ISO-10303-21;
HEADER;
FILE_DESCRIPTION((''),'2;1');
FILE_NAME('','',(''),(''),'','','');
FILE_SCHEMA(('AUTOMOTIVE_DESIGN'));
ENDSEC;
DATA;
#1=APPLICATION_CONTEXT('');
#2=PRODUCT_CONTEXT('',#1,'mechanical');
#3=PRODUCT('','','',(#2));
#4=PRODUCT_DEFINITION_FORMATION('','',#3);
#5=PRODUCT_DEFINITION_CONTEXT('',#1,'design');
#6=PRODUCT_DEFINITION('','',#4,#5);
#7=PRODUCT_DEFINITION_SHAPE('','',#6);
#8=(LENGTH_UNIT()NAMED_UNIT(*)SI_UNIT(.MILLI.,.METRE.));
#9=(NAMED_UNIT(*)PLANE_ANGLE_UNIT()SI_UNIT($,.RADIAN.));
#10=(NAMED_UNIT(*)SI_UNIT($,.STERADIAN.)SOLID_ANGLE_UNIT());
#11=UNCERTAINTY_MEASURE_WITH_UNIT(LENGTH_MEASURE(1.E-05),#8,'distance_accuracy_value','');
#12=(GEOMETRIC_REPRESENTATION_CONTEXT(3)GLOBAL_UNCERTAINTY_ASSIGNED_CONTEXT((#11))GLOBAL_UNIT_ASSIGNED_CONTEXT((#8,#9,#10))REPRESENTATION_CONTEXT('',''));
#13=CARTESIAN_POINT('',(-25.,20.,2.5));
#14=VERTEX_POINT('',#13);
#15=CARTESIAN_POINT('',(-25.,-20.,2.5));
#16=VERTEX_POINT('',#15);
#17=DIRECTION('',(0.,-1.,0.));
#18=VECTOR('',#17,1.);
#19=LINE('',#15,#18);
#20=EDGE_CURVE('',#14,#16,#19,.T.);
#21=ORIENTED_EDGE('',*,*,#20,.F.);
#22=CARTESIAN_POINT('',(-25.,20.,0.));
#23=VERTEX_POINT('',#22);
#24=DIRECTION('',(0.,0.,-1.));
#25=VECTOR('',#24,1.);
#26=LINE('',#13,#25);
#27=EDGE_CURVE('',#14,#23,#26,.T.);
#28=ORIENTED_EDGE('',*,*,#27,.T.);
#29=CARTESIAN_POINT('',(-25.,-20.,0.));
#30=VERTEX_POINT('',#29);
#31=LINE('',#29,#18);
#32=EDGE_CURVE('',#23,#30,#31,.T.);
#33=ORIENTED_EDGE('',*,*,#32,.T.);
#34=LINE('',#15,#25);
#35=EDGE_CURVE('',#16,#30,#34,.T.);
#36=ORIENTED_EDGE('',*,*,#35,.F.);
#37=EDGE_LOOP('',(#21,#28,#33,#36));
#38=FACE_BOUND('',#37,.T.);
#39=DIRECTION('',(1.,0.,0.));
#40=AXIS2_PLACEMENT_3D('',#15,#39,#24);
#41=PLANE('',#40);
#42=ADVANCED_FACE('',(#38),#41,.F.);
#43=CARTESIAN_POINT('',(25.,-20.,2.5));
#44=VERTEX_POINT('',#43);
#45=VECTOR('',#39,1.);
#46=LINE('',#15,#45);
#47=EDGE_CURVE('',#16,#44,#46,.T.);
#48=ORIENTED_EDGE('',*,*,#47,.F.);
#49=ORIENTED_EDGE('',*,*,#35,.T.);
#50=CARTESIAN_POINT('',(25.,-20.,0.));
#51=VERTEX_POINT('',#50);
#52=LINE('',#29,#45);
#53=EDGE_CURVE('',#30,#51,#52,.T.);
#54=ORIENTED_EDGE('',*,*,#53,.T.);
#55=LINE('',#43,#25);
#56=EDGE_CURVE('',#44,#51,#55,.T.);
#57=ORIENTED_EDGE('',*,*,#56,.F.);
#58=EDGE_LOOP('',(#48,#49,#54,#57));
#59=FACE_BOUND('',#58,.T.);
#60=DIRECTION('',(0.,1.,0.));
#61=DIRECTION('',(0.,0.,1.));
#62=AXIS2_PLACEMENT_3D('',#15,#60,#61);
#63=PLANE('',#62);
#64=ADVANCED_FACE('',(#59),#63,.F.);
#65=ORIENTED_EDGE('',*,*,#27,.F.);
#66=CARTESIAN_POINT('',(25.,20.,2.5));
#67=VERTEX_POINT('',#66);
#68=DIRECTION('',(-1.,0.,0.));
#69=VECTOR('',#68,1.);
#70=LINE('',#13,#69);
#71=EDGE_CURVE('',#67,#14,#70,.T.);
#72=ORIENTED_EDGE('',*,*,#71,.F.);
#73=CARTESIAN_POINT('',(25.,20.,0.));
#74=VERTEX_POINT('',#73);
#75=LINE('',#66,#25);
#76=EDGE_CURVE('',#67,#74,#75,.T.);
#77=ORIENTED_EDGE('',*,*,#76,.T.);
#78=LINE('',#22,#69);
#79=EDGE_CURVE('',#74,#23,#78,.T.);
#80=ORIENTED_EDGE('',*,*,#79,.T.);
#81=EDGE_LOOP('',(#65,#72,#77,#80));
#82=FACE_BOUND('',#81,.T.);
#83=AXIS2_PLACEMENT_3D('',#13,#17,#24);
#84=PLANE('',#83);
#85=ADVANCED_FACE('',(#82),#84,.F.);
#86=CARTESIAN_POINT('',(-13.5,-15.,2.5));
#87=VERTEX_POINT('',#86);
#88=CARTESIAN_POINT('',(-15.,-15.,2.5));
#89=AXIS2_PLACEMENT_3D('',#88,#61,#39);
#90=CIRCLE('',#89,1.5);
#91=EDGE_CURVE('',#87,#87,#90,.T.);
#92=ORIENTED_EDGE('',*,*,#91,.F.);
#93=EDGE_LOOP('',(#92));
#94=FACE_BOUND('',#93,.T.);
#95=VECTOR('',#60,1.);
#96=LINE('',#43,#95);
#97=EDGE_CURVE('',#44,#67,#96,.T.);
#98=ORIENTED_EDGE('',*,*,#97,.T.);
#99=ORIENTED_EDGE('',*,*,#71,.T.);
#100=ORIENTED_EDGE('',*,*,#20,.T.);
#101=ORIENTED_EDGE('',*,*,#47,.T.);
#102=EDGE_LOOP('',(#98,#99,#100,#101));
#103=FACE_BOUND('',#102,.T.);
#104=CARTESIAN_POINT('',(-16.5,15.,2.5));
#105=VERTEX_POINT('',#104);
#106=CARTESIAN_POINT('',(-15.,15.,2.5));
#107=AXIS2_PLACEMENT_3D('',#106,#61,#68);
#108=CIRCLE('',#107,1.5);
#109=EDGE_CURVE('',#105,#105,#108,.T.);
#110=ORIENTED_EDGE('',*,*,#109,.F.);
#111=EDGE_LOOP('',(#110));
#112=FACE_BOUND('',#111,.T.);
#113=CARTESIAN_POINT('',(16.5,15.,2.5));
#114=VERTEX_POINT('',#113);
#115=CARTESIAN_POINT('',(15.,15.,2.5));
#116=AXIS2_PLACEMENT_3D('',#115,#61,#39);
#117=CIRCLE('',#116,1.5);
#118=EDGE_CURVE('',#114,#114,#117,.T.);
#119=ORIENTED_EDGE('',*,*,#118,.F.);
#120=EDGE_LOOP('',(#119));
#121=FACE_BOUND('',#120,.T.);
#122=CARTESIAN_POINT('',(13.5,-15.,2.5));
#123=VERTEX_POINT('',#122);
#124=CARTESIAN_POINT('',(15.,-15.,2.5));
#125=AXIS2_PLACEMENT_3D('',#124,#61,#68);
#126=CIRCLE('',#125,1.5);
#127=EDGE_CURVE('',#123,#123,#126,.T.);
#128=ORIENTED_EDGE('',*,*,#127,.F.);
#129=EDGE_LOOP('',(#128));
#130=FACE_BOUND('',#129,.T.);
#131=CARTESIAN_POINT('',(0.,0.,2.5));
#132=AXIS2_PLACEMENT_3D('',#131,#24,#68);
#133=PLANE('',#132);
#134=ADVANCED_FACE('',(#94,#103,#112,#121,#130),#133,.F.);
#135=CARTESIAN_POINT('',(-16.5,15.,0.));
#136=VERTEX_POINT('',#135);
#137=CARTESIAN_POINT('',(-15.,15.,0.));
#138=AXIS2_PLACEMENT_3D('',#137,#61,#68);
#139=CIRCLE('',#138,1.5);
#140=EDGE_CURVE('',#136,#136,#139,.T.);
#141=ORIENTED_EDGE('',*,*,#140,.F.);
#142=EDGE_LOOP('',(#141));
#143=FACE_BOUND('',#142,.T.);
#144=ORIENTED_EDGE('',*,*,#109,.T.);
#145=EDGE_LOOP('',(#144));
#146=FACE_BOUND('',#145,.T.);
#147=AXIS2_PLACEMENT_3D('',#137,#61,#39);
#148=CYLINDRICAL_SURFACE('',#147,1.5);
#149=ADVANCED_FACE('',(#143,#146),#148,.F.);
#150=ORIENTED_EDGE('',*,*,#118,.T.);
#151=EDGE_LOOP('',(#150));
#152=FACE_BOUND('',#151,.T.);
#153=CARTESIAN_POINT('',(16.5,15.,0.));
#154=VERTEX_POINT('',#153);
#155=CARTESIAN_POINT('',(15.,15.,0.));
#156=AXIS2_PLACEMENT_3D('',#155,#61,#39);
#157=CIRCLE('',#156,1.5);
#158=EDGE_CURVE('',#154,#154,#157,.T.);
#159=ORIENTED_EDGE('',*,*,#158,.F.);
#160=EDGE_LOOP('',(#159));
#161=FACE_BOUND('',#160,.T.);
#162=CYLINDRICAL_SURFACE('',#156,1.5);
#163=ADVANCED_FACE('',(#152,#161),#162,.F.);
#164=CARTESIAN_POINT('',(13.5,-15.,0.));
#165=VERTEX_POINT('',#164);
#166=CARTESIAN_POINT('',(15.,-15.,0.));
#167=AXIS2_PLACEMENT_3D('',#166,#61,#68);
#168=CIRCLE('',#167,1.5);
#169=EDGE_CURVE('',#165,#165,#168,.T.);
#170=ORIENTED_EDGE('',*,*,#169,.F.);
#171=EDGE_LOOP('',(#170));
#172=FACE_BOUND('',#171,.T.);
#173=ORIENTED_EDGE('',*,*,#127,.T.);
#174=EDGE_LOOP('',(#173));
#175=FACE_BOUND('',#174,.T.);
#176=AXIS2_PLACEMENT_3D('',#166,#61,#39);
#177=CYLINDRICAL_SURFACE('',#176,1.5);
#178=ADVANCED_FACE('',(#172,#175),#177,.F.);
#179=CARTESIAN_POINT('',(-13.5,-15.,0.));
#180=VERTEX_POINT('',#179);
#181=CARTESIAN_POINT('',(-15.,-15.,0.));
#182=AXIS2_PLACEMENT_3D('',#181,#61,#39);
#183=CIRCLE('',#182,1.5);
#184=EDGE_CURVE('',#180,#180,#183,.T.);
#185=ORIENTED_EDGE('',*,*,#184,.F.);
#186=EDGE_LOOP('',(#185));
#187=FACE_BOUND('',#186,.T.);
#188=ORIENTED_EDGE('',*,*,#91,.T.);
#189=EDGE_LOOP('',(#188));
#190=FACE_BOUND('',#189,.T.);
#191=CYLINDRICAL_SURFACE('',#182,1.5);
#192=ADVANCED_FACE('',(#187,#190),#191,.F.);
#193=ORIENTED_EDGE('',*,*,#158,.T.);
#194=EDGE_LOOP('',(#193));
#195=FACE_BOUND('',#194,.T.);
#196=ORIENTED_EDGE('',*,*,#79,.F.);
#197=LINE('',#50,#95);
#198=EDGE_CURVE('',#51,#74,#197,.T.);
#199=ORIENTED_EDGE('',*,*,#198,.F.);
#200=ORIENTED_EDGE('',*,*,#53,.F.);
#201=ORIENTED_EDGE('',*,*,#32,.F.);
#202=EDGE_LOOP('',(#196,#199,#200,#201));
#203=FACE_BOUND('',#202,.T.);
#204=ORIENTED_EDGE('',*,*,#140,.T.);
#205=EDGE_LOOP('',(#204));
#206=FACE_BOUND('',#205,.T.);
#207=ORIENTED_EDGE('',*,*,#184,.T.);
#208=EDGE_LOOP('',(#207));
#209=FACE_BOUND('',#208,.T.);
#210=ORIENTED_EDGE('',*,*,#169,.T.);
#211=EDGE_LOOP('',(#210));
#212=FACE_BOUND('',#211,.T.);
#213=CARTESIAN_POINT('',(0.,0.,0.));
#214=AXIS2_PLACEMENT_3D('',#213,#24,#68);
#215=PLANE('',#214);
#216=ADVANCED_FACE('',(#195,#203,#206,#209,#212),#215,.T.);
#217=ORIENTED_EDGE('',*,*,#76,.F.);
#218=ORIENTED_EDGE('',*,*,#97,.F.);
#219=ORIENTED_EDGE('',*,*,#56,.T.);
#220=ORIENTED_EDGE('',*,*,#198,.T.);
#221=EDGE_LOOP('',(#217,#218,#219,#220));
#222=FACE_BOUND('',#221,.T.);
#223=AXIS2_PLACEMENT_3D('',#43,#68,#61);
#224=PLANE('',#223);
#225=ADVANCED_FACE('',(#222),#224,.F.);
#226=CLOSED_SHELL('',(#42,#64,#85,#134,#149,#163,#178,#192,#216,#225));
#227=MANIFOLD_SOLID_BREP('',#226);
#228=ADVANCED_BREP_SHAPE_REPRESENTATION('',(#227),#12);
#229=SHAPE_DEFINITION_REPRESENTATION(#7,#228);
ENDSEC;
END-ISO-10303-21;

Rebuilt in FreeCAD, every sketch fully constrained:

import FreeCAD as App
import Part
import Sketcher

doc = App.newDocument("Part")
body = doc.addObject("PartDesign::Body", "Body")

sketch1 = body.newObject("Sketcher::SketchObject", "Sketch")
sketch1.AttachmentSupport = (doc.getObject("XY_Plane"), [""])
sketch1.MapMode = "FlatFace"
sketch1.addGeometry(Part.LineSegment(App.Vector(-25, 20, 0), App.Vector(-25, -20, 0)), False)
sketch1.addGeometry(Part.LineSegment(App.Vector(-25, -20, 0), App.Vector(25, -20, 0)), False)
sketch1.addGeometry(Part.LineSegment(App.Vector(25, -20, 0), App.Vector(25, 20, 0)), False)
sketch1.addGeometry(Part.LineSegment(App.Vector(25, 20, 0), App.Vector(-25, 20, 0)), False)
sketch1.addConstraint(Sketcher.Constraint("Coincident", 0, 2, 1, 1))
sketch1.addConstraint(Sketcher.Constraint("Coincident", 1, 2, 2, 1))
sketch1.addConstraint(Sketcher.Constraint("Coincident", 2, 2, 3, 1))
sketch1.addConstraint(Sketcher.Constraint("Coincident", 3, 2, 0, 1))
sketch1.addConstraint(Sketcher.Constraint("Vertical", 0))
sketch1.addConstraint(Sketcher.Constraint("Horizontal", 1))
sketch1.addConstraint(Sketcher.Constraint("Vertical", 2))
sketch1.addConstraint(Sketcher.Constraint("Horizontal", 3))
sketch1.addConstraint(Sketcher.Constraint("Symmetric", 0, 2, 2, 2, -1, 1))
sketch1.addConstraint(Sketcher.Constraint("DistanceX", 1, 1, 1, 2, 50.0))
sketch1.addConstraint(Sketcher.Constraint("DistanceY", 0, 2, 0, 1, 40.0))
pad1 = body.newObject("PartDesign::Pad", "Pad")
pad1.Profile = sketch1
pad1.Length = 2.5

sketch2 = body.newObject("Sketcher::SketchObject", "Sketch001")
sketch2.AttachmentSupport = (doc.getObject("XY_Plane"), [""])
sketch2.MapMode = "FlatFace"
sketch2.AttachmentOffset = App.Placement(App.Vector(0, 0, 2.5), App.Rotation())
sketch2.addGeometry(Part.Circle(App.Vector(15, 15, 0), App.Vector(0, 0, 1), 1.5), False)
sketch2.addGeometry(Part.Circle(App.Vector(15, -15, 0), App.Vector(0, 0, 1), 1.5), False)
sketch2.addGeometry(Part.Circle(App.Vector(-15, -15, 0), App.Vector(0, 0, 1), 1.5), False)
sketch2.addGeometry(Part.Circle(App.Vector(-15, 15, 0), App.Vector(0, 0, 1), 1.5), False)
sketch2.addConstraint(Sketcher.Constraint("Equal", 0, 1))
sketch2.addConstraint(Sketcher.Constraint("Equal", 1, 2))
sketch2.addConstraint(Sketcher.Constraint("Equal", 2, 3))
sketch2.addConstraint(Sketcher.Constraint("Symmetric", 0, 3, 2, 3, -1, 1))
sketch2.addConstraint(Sketcher.Constraint("Symmetric", 1, 3, 3, 3, -1, 1))
sketch2.addConstraint(Sketcher.Constraint("Symmetric", 1, 3, 2, 3, -2))
sketch2.addConstraint(Sketcher.Constraint("Diameter", 0, 3.0))
sketch2.addConstraint(Sketcher.Constraint("DistanceX", -1, 1, 0, 3, 15.0))
sketch2.addConstraint(Sketcher.Constraint("DistanceY", -1, 1, 0, 3, 15.0))
pocket1 = body.newObject("PartDesign::Pocket", "Pocket")
pocket1.Profile = sketch2
pocket1.Length = 2.5

doc.recompute()
